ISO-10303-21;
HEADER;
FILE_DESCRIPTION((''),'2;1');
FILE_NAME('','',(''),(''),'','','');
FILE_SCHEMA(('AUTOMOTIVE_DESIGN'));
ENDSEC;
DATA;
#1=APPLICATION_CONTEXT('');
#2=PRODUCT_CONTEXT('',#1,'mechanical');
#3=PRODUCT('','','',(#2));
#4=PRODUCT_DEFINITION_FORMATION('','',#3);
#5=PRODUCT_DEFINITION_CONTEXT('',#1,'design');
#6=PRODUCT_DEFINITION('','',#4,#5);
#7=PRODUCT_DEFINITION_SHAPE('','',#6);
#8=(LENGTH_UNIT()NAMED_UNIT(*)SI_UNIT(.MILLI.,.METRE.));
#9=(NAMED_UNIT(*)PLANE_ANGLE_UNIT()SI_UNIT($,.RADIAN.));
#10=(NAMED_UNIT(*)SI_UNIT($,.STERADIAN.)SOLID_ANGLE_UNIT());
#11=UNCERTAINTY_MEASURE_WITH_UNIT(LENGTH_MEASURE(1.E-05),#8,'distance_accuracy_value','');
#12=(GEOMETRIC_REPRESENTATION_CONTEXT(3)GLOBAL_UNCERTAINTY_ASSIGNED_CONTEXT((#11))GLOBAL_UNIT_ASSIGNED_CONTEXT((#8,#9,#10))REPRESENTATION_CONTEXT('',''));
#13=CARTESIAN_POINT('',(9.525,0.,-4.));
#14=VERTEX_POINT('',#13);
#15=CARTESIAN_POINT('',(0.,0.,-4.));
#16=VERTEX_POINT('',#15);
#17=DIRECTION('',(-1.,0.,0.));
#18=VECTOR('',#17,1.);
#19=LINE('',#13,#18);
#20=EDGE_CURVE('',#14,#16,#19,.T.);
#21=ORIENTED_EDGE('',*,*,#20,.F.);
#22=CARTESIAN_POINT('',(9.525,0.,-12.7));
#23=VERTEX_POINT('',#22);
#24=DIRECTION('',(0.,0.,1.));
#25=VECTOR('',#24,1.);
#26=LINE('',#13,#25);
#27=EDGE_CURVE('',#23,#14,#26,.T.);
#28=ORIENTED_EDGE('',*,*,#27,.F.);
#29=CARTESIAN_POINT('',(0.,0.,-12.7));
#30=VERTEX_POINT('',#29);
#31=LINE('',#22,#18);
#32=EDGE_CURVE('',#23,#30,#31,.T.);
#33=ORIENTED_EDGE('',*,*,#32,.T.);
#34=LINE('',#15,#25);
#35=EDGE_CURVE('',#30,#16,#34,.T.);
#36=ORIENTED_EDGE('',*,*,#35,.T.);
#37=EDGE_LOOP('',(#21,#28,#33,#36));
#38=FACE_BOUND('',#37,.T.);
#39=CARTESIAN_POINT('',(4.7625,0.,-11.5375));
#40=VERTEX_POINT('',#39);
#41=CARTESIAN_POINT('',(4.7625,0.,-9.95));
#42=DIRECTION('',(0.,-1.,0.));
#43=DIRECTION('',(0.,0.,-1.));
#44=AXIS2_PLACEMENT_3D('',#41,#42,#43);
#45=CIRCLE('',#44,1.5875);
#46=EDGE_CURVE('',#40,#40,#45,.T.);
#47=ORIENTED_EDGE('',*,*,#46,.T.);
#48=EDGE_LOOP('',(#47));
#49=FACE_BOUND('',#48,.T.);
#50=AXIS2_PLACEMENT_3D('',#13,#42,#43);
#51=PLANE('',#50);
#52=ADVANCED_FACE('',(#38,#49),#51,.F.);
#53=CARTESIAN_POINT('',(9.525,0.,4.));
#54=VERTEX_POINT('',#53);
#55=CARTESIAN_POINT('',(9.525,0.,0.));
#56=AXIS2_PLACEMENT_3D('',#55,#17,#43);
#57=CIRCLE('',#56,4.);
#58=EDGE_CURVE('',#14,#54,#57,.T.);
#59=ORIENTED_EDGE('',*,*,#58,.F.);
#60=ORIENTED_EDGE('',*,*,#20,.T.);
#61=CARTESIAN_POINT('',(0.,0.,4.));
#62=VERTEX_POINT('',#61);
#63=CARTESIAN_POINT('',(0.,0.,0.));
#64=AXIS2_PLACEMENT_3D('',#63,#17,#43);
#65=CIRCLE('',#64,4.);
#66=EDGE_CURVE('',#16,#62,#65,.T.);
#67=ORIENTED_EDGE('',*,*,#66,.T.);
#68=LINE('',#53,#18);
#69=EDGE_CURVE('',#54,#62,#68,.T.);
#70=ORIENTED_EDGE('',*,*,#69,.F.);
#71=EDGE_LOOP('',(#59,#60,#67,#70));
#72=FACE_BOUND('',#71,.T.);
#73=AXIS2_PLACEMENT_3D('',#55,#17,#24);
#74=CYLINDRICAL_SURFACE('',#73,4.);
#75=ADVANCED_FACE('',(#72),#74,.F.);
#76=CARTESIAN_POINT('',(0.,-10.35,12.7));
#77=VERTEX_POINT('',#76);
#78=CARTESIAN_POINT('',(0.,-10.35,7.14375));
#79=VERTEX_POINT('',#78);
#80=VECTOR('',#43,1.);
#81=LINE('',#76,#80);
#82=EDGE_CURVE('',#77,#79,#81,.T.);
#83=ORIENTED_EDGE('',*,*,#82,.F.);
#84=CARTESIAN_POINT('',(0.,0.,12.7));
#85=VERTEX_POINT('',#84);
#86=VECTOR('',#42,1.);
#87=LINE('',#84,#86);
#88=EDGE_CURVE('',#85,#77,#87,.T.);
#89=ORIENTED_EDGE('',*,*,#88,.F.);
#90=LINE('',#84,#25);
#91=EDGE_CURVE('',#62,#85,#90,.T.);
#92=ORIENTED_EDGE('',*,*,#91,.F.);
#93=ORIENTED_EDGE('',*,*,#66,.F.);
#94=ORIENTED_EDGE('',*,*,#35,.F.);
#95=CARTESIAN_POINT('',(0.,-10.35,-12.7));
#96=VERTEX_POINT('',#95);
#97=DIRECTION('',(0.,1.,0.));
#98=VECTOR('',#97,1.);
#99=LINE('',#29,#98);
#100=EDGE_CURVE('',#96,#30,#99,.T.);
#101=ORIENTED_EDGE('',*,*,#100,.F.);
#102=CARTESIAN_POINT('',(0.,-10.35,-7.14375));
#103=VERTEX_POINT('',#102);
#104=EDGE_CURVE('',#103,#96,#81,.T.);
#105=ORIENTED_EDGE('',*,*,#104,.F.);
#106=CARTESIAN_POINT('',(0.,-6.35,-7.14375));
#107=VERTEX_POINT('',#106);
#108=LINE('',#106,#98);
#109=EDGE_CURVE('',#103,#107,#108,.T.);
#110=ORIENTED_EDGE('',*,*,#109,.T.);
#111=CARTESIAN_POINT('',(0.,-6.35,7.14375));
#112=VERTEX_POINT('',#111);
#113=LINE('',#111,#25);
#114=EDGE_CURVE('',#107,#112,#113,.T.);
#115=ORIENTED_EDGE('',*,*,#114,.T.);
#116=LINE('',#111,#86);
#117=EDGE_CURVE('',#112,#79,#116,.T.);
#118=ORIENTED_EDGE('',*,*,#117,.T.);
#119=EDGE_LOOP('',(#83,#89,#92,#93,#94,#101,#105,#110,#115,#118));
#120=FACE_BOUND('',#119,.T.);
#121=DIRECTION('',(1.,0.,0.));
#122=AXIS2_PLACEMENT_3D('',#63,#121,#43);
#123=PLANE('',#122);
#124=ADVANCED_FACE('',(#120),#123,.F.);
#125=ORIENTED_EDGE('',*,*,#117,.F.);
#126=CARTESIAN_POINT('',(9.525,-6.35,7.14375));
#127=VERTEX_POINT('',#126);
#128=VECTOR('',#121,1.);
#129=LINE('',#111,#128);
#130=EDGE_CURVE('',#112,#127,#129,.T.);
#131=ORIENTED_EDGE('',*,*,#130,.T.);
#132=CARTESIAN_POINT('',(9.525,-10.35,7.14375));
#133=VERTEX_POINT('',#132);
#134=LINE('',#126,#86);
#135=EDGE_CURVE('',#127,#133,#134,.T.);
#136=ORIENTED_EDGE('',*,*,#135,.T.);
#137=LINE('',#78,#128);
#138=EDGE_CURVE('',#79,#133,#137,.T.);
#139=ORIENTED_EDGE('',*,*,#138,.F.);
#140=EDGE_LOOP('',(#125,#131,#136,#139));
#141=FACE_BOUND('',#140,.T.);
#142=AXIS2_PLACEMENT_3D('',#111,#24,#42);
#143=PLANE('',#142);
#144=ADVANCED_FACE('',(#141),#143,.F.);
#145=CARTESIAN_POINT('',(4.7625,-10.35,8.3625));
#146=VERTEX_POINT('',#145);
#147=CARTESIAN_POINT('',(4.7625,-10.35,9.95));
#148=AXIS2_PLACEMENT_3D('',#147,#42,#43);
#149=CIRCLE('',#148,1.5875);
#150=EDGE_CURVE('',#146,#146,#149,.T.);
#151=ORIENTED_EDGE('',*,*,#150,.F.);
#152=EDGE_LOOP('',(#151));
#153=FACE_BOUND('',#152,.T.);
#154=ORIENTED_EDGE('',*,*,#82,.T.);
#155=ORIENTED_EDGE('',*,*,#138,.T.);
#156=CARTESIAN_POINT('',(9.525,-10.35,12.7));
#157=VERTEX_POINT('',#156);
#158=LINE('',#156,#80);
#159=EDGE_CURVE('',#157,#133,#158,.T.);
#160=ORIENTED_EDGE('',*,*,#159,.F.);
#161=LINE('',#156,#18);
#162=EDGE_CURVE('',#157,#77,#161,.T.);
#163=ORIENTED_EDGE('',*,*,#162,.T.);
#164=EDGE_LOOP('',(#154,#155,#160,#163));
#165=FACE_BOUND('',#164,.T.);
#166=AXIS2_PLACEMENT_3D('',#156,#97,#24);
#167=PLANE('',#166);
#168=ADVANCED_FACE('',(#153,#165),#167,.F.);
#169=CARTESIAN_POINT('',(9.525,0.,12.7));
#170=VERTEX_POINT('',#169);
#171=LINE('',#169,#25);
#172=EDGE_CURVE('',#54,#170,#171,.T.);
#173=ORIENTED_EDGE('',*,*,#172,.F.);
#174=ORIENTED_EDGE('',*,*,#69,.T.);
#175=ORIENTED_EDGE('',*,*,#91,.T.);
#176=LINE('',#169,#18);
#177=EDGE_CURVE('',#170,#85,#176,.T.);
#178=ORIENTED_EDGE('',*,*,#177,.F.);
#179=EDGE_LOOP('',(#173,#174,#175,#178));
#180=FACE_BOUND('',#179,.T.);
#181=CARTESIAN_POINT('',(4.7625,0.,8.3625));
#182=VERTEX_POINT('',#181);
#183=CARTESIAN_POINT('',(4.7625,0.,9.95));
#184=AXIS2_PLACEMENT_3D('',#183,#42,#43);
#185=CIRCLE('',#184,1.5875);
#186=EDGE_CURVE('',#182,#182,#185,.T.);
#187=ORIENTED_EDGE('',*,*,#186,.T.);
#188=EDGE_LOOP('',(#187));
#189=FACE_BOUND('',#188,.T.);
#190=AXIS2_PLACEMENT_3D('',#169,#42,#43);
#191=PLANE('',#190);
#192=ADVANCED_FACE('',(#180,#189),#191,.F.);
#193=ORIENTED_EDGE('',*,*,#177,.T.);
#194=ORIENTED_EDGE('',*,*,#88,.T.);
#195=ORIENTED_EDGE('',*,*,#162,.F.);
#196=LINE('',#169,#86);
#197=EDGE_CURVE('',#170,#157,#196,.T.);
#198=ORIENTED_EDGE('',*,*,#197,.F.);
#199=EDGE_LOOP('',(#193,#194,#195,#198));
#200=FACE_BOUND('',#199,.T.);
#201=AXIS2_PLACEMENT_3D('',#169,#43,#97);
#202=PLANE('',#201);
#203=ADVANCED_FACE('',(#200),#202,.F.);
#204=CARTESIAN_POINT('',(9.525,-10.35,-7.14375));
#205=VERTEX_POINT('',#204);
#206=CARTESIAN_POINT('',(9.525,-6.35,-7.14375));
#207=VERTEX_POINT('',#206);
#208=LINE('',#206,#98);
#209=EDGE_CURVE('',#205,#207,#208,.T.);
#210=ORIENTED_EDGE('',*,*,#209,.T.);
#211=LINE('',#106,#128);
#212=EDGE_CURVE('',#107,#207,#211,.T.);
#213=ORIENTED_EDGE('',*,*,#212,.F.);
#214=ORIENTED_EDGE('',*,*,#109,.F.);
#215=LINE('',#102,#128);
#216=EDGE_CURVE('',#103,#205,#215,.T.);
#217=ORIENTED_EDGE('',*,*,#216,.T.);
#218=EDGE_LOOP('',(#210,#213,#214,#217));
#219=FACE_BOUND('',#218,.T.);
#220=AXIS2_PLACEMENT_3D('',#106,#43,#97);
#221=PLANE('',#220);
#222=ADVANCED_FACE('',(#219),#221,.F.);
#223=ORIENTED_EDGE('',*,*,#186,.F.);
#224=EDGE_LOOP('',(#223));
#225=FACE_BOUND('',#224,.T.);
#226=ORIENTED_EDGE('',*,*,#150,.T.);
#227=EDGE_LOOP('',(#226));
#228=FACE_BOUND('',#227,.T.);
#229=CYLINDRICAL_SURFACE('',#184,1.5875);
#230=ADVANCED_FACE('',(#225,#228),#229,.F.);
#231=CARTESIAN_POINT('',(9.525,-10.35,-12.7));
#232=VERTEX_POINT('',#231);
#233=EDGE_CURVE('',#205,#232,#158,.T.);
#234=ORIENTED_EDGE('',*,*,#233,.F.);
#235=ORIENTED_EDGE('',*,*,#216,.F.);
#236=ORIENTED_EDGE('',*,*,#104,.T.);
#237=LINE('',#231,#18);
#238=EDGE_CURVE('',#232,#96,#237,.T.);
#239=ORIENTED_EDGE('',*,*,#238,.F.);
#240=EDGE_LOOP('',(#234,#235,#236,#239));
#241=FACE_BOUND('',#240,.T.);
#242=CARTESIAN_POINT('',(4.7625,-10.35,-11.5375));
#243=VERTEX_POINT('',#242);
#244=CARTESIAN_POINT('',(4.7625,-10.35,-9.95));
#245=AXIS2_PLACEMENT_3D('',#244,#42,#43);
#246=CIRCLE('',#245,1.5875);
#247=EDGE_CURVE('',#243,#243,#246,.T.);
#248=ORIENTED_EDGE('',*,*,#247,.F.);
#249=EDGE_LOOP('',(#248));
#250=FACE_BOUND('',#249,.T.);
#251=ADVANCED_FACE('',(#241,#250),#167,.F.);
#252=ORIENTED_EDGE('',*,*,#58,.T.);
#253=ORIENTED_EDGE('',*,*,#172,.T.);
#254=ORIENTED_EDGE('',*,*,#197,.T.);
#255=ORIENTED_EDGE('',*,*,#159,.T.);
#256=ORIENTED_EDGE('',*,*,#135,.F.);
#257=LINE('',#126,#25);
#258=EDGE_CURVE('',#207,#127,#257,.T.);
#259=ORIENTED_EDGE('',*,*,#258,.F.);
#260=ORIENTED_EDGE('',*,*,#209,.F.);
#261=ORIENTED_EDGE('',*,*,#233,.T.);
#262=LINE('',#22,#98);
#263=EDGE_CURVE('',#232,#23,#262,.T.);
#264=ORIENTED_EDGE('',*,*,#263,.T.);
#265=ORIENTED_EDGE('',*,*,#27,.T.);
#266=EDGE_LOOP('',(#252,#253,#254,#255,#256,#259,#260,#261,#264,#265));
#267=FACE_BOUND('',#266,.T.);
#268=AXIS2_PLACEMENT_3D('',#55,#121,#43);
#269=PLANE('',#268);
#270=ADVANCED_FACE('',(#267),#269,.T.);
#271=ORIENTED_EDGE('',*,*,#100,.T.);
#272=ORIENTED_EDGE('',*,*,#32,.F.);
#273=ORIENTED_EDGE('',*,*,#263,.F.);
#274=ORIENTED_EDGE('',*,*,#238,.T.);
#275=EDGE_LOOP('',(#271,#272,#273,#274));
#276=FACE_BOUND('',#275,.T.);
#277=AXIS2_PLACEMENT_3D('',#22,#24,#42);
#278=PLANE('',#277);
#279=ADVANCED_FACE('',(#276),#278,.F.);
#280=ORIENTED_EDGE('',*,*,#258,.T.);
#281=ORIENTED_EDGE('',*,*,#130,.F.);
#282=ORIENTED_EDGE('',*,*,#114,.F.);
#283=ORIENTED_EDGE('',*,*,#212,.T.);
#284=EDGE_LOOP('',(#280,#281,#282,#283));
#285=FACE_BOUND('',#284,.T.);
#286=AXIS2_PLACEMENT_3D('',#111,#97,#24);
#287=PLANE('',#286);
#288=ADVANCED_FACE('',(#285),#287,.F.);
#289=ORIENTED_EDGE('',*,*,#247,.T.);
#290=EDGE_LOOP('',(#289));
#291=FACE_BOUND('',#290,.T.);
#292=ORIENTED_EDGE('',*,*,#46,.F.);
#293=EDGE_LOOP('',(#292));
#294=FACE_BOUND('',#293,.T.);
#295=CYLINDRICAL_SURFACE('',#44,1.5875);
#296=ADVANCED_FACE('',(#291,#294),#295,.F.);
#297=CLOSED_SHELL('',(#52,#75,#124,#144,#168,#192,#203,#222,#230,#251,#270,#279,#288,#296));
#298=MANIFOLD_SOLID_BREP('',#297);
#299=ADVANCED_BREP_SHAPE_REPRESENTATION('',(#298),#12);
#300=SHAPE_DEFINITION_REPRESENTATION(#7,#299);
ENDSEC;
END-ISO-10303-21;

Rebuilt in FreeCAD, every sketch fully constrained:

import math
import FreeCAD as App
import Part
import Sketcher

V = App.Vector
Q = App.Units.Quantity


def add_polygon(sketch, points):
    """Adds a closed chain of lines whose ends are joined by coincident constraints."""
    first, n = sketch.GeometryCount, len(points)
    for a, b in zip(points, points[1:] + points[:1]):
        sketch.addGeometry(Part.LineSegment(App.Vector(*a, 0), App.Vector(*b, 0)), False)
    for i in range(n):
        sketch.addConstraint(Sketcher.Constraint("Coincident", first + i, 2, first + (i + 1) % n, 1))

doc = App.newDocument("Part")
body = doc.addObject("PartDesign::Body", "Body")

# Sketch on YZ plane
sketch1 = doc.addObject("Sketcher::SketchObject", "Sketch")
body.addObject(sketch1)
sketch1.AttachmentSupport = (doc.YZ_Plane, [""])
sketch1.MapMode = "FlatFace"
sketch1.addGeometry([
    Part.LineSegment(V(0, -12.7, 0), V(0, -4, 0)),  # 0
    Part.ArcOfCircle(Part.Circle(V(0, 0, 0), V(0, 0, 1), 4), math.radians(90), math.radians(270)),  # 1
    Part.LineSegment(V(0, 4, 0), V(0, 12.7, 0)),  # 2
    Part.LineSegment(V(0, 12.7, 0), V(-10.35, 12.7, 0)),  # 3
    Part.LineSegment(V(-10.35, 12.7, 0), V(-10.35, -12.7, 0)),  # 4
    Part.LineSegment(V(-10.35, -12.7, 0), V(0, -12.7, 0)),  # 5
], False)
sketch1.addConstraint([
    Sketcher.Constraint("Coincident", 0, 2, 1, 2),
    Sketcher.Constraint("Coincident", 1, 1, 2, 1),
    Sketcher.Constraint("Coincident", 2, 2, 3, 1),
    Sketcher.Constraint("Coincident", 3, 2, 4, 1),
    Sketcher.Constraint("Coincident", 4, 2, 5, 1),
    Sketcher.Constraint("Coincident", 5, 2, 0, 1),
    Sketcher.Constraint("Vertical", 0),
    Sketcher.Constraint("Vertical", 2),
    Sketcher.Constraint("Horizontal", 3),
    Sketcher.Constraint("Vertical", 4),
    Sketcher.Constraint("Horizontal", 5),
    Sketcher.Constraint("Coincident", 1, 3, -1, 1),
    Sketcher.Constraint("Symmetric", 2, 2, 5, 2, -1, 1),
    Sketcher.Constraint("PointOnObject", 0, 2, -2),
    Sketcher.Constraint("DistanceY", 4, 2, 4, 1, Q("1 in")),
    Sketcher.Constraint("Radius", 1, 4.0),
    Sketcher.Constraint("DistanceX", 3, 2, 3, 1, 10.35),
])
pad1 = doc.addObject("PartDesign::Pad", "Pad")
body.addObject(pad1)
pad1.Profile = sketch1
pad1.Length = Q("0.375 in")

# Sketch on YZ plane
sketch2 = doc.addObject("Sketcher::SketchObject", "Sketch001")
body.addObject(sketch2)
sketch2.AttachmentSupport = (doc.YZ_Plane, [""])
sketch2.MapMode = "FlatFace"
sketch2.AttachmentOffset = App.Placement(V(0, 0, 0.375 * 25.4), App.Rotation())
add_polygon(sketch2, [(-6.35, 7.14375), (-10.35, 7.14375), (-10.35, -7.14375), (-6.35, -7.14375)])  # lines 0-3
sketch2.addConstraint([
    Sketcher.Constraint("Horizontal", 0),
    Sketcher.Constraint("Vertical", 1),
    Sketcher.Constraint("Horizontal", 2),
    Sketcher.Constraint("Vertical", 3),
    Sketcher.Constraint("DistanceY", 1, 2, 1, 1, Q("0.5625 in")),
    Sketcher.Constraint("DistanceX", 2, 2, -1, 1, Q("0.25 in")),
    Sketcher.Constraint("DistanceY", -1, 1, 0, 2, Q("0.28125 in")),
    Sketcher.Constraint("DistanceX", 0, 2, 0, 1, 4.0),
])
pocket1 = doc.addObject("PartDesign::Pocket", "Pocket")
body.addObject(pocket1)
pocket1.Profile = sketch2
pocket1.Type = "ThroughAll"

# Sketch on XZ plane
sketch3 = doc.addObject("Sketcher::SketchObject", "Sketch002")
body.addObject(sketch3)
sketch3.AttachmentSupport = (doc.XZ_Plane, [""])
sketch3.MapMode = "FlatFace"
sketch3.AttachmentOffset = App.Placement(V(0, 0, 10.35), App.Rotation())
sketch3.addGeometry([
    Part.Circle(V(4.7625, -9.95, 0), V(0, 0, 1), 1.5875),
    Part.Circle(V(4.7625, 9.95, 0), V(0, 0, 1), 1.5875),
], False)
sketch3.addConstraint([
    Sketcher.Constraint("Equal", 0, 1),
    Sketcher.Constraint("Symmetric", 0, 3, 1, 3, -1),
    Sketcher.Constraint("Diameter", 0, Q("0.125 in")),
    Sketcher.Constraint("DistanceX", -1, 1, 0, 3, Q("0.1875 in")),
    Sketcher.Constraint("DistanceY", 0, 3, -1, 1, 9.95),
])
pocket2 = doc.addObject("PartDesign::Pocket", "Pocket001")
body.addObject(pocket2)
pocket2.Profile = sketch3
pocket2.Type = "ThroughAll"

doc.recompute()
